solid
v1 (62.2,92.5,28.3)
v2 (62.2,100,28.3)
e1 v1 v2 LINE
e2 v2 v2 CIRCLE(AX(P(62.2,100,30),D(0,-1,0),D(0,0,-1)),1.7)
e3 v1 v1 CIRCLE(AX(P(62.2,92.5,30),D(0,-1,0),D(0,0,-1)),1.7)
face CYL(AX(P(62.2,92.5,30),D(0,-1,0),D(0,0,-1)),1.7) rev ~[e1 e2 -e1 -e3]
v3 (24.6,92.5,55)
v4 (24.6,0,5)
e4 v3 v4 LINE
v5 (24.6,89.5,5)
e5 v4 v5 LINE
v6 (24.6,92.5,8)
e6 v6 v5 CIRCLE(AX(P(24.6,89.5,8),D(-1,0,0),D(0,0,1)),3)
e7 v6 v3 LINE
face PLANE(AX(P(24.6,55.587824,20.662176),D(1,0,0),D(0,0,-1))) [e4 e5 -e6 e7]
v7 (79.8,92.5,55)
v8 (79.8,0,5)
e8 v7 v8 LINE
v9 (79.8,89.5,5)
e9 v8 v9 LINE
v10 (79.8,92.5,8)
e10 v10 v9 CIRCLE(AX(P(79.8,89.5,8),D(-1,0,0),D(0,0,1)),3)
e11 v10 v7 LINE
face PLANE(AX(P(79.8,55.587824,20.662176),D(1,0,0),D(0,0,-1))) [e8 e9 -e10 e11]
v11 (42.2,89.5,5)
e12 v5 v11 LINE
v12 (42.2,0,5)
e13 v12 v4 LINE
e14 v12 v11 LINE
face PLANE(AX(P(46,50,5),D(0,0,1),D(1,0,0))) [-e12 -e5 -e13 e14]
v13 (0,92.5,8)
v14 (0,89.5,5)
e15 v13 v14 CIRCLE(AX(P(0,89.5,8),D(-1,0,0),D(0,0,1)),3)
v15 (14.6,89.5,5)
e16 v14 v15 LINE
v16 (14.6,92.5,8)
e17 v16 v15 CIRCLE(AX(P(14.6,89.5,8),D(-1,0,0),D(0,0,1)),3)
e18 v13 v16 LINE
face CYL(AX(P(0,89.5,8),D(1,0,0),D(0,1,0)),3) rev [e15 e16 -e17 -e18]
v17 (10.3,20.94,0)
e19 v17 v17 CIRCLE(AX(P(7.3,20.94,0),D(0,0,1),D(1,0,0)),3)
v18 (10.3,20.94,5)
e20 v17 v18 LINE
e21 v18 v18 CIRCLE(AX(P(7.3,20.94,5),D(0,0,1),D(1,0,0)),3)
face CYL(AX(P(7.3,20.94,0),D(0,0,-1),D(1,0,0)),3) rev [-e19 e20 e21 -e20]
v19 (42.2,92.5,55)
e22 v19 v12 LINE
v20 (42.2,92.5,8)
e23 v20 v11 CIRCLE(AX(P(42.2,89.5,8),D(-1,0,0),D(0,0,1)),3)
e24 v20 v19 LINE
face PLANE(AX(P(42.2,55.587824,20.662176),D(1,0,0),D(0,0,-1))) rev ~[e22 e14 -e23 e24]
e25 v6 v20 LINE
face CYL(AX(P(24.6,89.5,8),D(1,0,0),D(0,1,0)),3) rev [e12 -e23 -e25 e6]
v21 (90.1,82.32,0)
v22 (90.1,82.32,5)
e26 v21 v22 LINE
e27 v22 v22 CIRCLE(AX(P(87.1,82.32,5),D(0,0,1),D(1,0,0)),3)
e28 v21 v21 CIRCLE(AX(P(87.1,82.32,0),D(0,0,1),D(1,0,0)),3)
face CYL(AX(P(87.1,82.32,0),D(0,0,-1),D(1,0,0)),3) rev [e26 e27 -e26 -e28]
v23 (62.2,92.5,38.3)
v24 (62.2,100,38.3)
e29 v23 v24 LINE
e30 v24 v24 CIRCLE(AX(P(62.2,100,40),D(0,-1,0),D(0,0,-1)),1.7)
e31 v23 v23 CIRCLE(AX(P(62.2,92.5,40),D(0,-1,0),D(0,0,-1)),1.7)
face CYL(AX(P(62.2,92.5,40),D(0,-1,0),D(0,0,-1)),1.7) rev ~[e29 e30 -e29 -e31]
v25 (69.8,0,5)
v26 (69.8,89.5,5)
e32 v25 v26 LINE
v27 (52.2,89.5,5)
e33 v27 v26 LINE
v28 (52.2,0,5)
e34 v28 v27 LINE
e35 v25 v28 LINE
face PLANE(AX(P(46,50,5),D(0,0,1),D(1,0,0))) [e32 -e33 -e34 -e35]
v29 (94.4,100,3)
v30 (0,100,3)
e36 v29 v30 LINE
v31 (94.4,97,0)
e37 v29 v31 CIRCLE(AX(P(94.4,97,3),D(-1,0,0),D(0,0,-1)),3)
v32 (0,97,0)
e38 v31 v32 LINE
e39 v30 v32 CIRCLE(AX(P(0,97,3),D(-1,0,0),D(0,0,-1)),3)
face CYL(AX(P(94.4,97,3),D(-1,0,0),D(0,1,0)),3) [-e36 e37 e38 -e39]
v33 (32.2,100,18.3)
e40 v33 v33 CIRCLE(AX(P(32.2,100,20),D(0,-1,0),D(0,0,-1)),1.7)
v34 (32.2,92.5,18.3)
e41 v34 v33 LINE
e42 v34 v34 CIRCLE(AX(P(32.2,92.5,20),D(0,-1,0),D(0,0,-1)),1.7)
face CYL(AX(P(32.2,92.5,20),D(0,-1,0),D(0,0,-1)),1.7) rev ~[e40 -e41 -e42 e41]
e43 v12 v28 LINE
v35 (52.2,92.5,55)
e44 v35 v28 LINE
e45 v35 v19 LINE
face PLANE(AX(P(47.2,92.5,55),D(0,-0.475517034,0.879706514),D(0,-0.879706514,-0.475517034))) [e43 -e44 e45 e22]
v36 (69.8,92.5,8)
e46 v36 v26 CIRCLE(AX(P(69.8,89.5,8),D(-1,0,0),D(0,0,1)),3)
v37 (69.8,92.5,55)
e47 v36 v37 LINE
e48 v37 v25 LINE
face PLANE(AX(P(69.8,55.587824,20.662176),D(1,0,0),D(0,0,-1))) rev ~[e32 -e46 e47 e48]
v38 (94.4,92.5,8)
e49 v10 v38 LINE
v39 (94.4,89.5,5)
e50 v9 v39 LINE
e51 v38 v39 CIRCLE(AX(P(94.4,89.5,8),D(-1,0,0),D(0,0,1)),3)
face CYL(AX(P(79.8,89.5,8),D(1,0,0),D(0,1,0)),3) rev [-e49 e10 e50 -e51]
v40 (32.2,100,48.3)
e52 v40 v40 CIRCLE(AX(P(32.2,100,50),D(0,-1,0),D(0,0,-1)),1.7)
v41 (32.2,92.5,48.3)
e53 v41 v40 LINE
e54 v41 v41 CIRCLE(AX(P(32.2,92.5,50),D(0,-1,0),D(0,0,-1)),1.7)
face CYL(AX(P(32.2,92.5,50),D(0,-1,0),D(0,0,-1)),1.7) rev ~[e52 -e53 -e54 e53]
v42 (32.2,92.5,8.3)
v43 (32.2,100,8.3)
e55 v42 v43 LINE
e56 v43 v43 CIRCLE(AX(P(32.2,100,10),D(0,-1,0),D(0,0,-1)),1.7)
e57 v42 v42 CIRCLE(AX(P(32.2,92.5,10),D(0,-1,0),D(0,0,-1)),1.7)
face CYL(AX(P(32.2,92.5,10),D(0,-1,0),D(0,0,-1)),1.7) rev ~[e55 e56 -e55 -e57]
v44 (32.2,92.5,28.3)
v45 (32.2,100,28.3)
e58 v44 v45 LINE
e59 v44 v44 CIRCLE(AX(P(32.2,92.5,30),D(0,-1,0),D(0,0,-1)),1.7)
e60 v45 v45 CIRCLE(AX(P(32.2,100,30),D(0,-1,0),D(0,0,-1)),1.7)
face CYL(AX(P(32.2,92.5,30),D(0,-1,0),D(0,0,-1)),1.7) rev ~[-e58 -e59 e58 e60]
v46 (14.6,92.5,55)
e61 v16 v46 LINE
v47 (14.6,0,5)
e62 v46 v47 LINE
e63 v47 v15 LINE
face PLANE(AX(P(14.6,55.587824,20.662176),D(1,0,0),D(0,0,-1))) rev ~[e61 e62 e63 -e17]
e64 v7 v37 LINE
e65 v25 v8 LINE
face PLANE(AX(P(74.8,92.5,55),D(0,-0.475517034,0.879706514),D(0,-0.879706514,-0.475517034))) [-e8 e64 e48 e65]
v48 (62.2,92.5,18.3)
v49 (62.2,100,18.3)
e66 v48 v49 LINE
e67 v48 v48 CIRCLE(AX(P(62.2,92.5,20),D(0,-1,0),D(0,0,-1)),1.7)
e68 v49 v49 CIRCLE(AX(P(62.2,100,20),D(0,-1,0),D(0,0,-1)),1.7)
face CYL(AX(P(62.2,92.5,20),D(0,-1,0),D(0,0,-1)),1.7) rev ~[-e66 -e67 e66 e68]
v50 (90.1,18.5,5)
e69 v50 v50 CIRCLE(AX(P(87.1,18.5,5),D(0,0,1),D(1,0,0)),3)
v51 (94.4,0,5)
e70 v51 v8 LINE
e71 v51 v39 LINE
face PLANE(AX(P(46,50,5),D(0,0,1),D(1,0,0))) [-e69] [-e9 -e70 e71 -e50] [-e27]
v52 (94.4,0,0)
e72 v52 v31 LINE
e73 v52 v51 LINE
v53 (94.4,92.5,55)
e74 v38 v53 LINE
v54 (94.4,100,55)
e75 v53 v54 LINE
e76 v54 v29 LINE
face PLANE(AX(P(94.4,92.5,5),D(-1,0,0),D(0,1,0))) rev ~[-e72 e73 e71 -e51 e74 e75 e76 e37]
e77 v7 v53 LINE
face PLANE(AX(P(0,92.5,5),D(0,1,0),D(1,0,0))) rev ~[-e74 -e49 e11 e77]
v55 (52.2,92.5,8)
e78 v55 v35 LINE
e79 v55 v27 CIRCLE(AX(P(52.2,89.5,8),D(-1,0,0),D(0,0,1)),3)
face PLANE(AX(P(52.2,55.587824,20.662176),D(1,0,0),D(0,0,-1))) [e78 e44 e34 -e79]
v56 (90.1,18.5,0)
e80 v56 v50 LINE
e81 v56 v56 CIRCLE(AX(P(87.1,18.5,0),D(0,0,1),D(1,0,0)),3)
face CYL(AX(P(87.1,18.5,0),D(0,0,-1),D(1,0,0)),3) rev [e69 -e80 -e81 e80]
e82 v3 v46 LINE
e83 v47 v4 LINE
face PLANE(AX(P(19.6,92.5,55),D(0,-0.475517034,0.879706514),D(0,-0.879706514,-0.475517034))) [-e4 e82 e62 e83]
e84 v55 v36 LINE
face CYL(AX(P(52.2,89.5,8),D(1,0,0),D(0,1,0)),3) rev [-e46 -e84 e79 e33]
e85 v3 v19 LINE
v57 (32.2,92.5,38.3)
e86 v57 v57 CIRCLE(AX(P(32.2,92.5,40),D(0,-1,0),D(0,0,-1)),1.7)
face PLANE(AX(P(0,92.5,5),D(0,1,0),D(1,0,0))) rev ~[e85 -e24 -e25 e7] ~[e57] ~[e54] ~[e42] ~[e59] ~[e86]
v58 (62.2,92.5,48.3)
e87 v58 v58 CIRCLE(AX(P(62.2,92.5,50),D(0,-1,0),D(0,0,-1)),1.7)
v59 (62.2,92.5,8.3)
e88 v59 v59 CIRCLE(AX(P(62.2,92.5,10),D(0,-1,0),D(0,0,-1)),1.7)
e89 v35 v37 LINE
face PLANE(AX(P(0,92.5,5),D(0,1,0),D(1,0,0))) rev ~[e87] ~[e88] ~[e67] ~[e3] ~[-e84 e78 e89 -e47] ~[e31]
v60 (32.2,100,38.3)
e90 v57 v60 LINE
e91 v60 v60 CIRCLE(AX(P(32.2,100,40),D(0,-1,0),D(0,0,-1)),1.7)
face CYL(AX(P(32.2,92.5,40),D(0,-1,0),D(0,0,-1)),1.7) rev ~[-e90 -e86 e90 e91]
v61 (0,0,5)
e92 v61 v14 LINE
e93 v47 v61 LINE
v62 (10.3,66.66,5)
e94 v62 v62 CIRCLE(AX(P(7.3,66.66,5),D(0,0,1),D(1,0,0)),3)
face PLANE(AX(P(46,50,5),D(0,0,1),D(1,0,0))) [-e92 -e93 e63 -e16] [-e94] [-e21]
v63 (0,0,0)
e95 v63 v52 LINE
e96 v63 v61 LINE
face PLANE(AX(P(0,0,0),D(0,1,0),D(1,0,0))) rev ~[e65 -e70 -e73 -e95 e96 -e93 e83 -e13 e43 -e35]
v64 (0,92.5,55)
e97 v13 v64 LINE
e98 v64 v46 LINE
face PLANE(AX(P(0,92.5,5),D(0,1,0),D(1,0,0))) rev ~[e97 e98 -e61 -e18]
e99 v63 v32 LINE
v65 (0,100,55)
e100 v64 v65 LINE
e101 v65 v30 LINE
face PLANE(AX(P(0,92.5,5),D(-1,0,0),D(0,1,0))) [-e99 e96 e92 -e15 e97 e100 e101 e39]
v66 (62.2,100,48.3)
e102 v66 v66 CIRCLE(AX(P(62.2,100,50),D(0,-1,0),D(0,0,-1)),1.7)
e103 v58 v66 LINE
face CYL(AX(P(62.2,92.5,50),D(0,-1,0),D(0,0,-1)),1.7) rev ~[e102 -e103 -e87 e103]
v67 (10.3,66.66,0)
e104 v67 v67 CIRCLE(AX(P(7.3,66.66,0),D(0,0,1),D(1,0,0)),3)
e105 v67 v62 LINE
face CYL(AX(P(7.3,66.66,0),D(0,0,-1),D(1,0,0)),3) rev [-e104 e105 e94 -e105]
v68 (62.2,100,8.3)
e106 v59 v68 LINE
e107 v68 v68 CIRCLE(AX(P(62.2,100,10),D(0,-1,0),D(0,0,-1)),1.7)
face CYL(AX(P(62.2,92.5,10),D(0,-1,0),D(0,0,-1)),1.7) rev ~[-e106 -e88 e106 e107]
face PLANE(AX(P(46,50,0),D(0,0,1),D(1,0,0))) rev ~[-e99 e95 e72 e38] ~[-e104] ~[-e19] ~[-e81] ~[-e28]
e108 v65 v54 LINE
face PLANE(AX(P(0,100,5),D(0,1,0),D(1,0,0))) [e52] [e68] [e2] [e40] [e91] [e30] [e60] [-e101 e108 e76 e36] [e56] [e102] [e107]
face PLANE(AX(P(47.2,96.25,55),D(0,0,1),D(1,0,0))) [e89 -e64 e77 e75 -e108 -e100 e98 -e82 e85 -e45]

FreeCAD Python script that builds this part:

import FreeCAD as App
import Part
import Sketcher

V = App.Vector
Q = App.Units.Quantity


def edges_at(feature, points):
    """Names of the edges that pass closest to the given points."""
    edges = feature.Shape.Edges
    near = lambda p: min(range(len(edges)), key=lambda i: edges[i].distToShape(Part.Vertex(*p))[0])
    return sorted({f"Edge{near(p) + 1}" for p in points})


def add_polygon(sketch, points):
    """Adds a closed chain of lines whose ends are joined by coincident constraints."""
    first, n = sketch.GeometryCount, len(points)
    for a, b in zip(points, points[1:] + points[:1]):
        sketch.addGeometry(Part.LineSegment(App.Vector(*a, 0), App.Vector(*b, 0)), False)
    for i in range(n):
        sketch.addConstraint(Sketcher.Constraint("Coincident", first + i, 2, first + (i + 1) % n, 1))

doc = App.newDocument("Part")
body = doc.addObject("PartDesign::Body", "Body")

sketch1 = doc.addObject("Sketcher::SketchObject", "Sketch")
body.addObject(sketch1)
sketch1.AttachmentSupport = (doc.XY_Plane, [""])
sketch1.MapMode = "FlatFace"
add_polygon(sketch1, [(94.4, 0), (94.4, 100), (0, 100), (0, 0)])
sketch1.addGeometry(Part.Circle(V(87.1, 82.3, 0), V(0, 0, 1), 3), False)
sketch1.addGeometry(Part.Circle(V(7.3, 20.9, 0), V(0, 0, 1), 3), False)
sketch1.addGeometry(Part.Circle(V(87.1, 18.5, 0), V(0, 0, 1), 3), False)
sketch1.addGeometry(Part.Circle(V(7.3, 66.7, 0), V(0, 0, 1), 3), False)
sketch1.addConstraint(Sketcher.Constraint("Vertical", 0))
sketch1.addConstraint(Sketcher.Constraint("Horizontal", 1))
sketch1.addConstraint(Sketcher.Constraint("Vertical", 2))
sketch1.addConstraint(Sketcher.Constraint("Horizontal", 3))
sketch1.addConstraint(Sketcher.Constraint("Coincident", 2, 2, -1, 1))
sketch1.addConstraint(Sketcher.Constraint("Equal", 4, 5))
sketch1.addConstraint(Sketcher.Constraint("Equal", 5, 6))
sketch1.addConstraint(Sketcher.Constraint("Equal", 6, 7))
sketch1.addConstraint(Sketcher.Constraint("Vertical", 4, 3, 6, 3))
sketch1.addConstraint(Sketcher.Constraint("Vertical", 5, 3, 7, 3))
sketch1.addConstraint(Sketcher.Constraint("Diameter", 4, Q("6 mm")))
sketch1.addConstraint(Sketcher.Constraint("DistanceY", 0, 1, 0, 2, Q("100 mm")))
sketch1.addConstraint(Sketcher.Constraint("DistanceX", 1, 2, 1, 1, Q("94.4 mm")))
sketch1.addConstraint(Sketcher.Constraint("DistanceX", -1, 1, 4, 3, Q("87.1 mm")))
sketch1.addConstraint(Sketcher.Constraint("DistanceX", -1, 1, 5, 3, Q("7.3 mm")))
sketch1.addConstraint(Sketcher.Constraint("DistanceY", -1, 1, 6, 3, Q("18.5 mm")))
sketch1.addConstraint(Sketcher.Constraint("DistanceY", -1, 1, 4, 3, Q("82.32 mm")))
sketch1.addConstraint(Sketcher.Constraint("DistanceY", -1, 1, 5, 3, Q("20.94 mm")))
sketch1.addConstraint(Sketcher.Constraint("DistanceY", -1, 1, 7, 3, Q("66.66 mm")))
pad1 = doc.addObject("PartDesign::Pad", "Pad")
body.addObject(pad1)
pad1.Profile = sketch1
pad1.Length = 5

sketch2 = doc.addObject("Sketcher::SketchObject", "Sketch001")
body.addObject(sketch2)
sketch2.AttachmentSupport = (doc.XY_Plane, [""])
sketch2.MapMode = "FlatFace"
sketch2.AttachmentOffset = App.Placement(V(0, 0, 5), App.Rotation())
add_polygon(sketch2, [(0, 100), (0, 92), (94, 92), (94, 100)])
sketch2.addConstraint(Sketcher.Constraint("Vertical", 0))
sketch2.addConstraint(Sketcher.Constraint("Horizontal", 1))
sketch2.addConstraint(Sketcher.Constraint("Vertical", 2))
sketch2.addConstraint(Sketcher.Constraint("Horizontal", 3))
sketch2.addConstraint(Sketcher.Constraint("PointOnObject", 0, 2, -2))
sketch2.addConstraint(Sketcher.Constraint("DistanceX", 1, 1, 1, 2, Q("94.4 mm")))
sketch2.addConstraint(Sketcher.Constraint("DistanceY", 0, 2, 0, 1, Q("7.5 mm")))
sketch2.addConstraint(Sketcher.Constraint("DistanceY", -1, 1, 2, 2, Q("100 mm")))
pad2 = doc.addObject("PartDesign::Pad", "Pad001")
body.addObject(pad2)
pad2.Profile = sketch2
pad2.Length = 50

sketch3 = doc.addObject("Sketcher::SketchObject", "Sketch002")
body.addObject(sketch3)
sketch3.AttachmentSupport = (doc.YZ_Plane, [""])
sketch3.MapMode = "FlatFace"
sketch3.AttachmentOffset = App.Placement(V(0, 0, 47.2), App.Rotation())
add_polygon(sketch3, [(92, 55), (0, 5), (92, 5)])
sketch3.addConstraint(Sketcher.Constraint("Horizontal", 1))
sketch3.addConstraint(Sketcher.Constraint("Vertical", 2))
sketch3.addConstraint(Sketcher.Constraint("PointOnObject", 0, 2, -2))
sketch3.addConstraint(Sketcher.Constraint("DistanceY", 2, 1, 2, 2, Q("50 mm")))
sketch3.addConstraint(Sketcher.Constraint("DistanceX", 1, 1, 1, 2, Q("92.5 mm")))
sketch3.addConstraint(Sketcher.Constraint("DistanceY", -1, 1, 0, 2, Q("5 mm")))
pad3 = doc.addObject("PartDesign::Pad", "Pad002")
body.addObject(pad3)
pad3.Profile = sketch3
pad3.Length = 10
pad3.Midplane = True
doc.recompute()

linearpattern = doc.addObject("PartDesign::LinearPattern", "LinearPattern")
body.addObject(linearpattern)
linearpattern.Originals = [pad3]
linearpattern.Direction = (doc.X_Axis, [""])
linearpattern.Mode = "offset"
linearpattern.Offset = 27.6
linearpattern.Occurrences = 2
linearpattern.Reversed = True
body.Tip = linearpattern
doc.recompute()

linearpattern2 = doc.addObject("PartDesign::LinearPattern", "LinearPattern001")
body.addObject(linearpattern2)
linearpattern2.Originals = [pad3]
linearpattern2.Direction = (doc.X_Axis, [""])
linearpattern2.Mode = "offset"
linearpattern2.Offset = 27.6
linearpattern2.Occurrences = 2
body.Tip = linearpattern2
doc.recompute()

fillet = doc.addObject("PartDesign::Fillet", "Fillet")
body.addObject(fillet)
fillet.Base = (linearpattern2, edges_at(linearpattern2, [
    (47.2, 100, 0),
    (7.3, 92.5, 5),
    (61, 92.5, 5),
    (87.1, 92.5, 5),
    (33.4, 92.5, 5),
]))
fillet.Radius = 3

sketch4 = doc.addObject("Sketcher::SketchObject", "Sketch003")
body.addObject(sketch4)
sketch4.AttachmentSupport = (doc.XZ_Plane, [""])
sketch4.MapMode = "FlatFace"
sketch4.AttachmentOffset = App.Placement(V(0, 0, -92.5), App.Rotation())
sketch4.addGeometry(Part.Circle(V(32.2, 50, 0), V(0, 0, 1), 1.7), False)
sketch4.addConstraint(Sketcher.Constraint("Diameter", 0, Q("3.4 mm")))
sketch4.addConstraint(Sketcher.Constraint("DistanceY", -1, 1, 0, 3, Q("50 mm")))
sketch4.addConstraint(Sketcher.Constraint("DistanceX", -1, 1, 0, 3, Q("32.2 mm")))
pocket1 = doc.addObject("PartDesign::Pocket", "Pocket")
body.addObject(pocket1)
pocket1.Profile = sketch4
pocket1.Type = "UpToFirst"

sketch5 = doc.addObject("Sketcher::SketchObject", "Sketch004")
body.addObject(sketch5)
sketch5.AttachmentSupport = (doc.XZ_Plane, [""])
sketch5.MapMode = "FlatFace"
sketch5.AttachmentOffset = App.Placement(V(0, 0, -92.5), App.Rotation())
sketch5.addGeometry(Part.Circle(V(62.2, 50, 0), V(0, 0, 1), 1.7), False)
sketch5.addConstraint(Sketcher.Constraint("Diameter", 0, Q("3.4 mm")))
sketch5.addConstraint(Sketcher.Constraint("DistanceY", -1, 1, 0, 3, Q("50 mm")))
sketch5.addConstraint(Sketcher.Constraint("DistanceX", -1, 1, 0, 3, Q("62.2 mm")))
pocket2 = doc.addObject("PartDesign::Pocket", "Pocket001")
body.addObject(pocket2)
pocket2.Profile = sketch5
pocket2.Type = "UpToFirst"

sketch6 = doc.addObject("Sketcher::SketchObject", "Sketch005")
body.addObject(sketch6)
sketch6.AttachmentSupport = (doc.XZ_Plane, [""])
sketch6.MapMode = "FlatFace"
sketch6.AttachmentOffset = App.Placement(V(0, 0, -92.5), App.Rotation())
sketch6.addGeometry(Part.Circle(V(62.2, 40, 0), V(0, 0, 1), 1.7), False)
sketch6.addConstraint(Sketcher.Constraint("Diameter", 0, Q("3.4 mm")))
sketch6.addConstraint(Sketcher.Constraint("DistanceY", -1, 1, 0, 3, Q("40 mm")))
sketch6.addConstraint(Sketcher.Constraint("DistanceX", -1, 1, 0, 3, Q("62.2 mm")))
pocket3 = doc.addObject("PartDesign::Pocket", "Pocket002")
body.addObject(pocket3)
pocket3.Profile = sketch6
pocket3.Type = "UpToFirst"

sketch7 = doc.addObject("Sketcher::SketchObject", "Sketch006")
body.addObject(sketch7)
sketch7.AttachmentSupport = (doc.XZ_Plane, [""])
sketch7.MapMode = "FlatFace"
sketch7.AttachmentOffset = App.Placement(V(0, 0, -92.5), App.Rotation())
sketch7.addGeometry(Part.Circle(V(62.2, 30, 0), V(0, 0, 1), 1.7), False)
sketch7.addConstraint(Sketcher.Constraint("Diameter", 0, Q("3.4 mm")))
sketch7.addConstraint(Sketcher.Constraint("DistanceY", -1, 1, 0, 3, Q("30 mm")))
sketch7.addConstraint(Sketcher.Constraint("DistanceX", -1, 1, 0, 3, Q("62.2 mm")))
pocket4 = doc.addObject("PartDesign::Pocket", "Pocket003")
body.addObject(pocket4)
pocket4.Profile = sketch7
pocket4.Type = "UpToFirst"

sketch8 = doc.addObject("Sketcher::SketchObject", "Sketch007")
body.addObject(sketch8)
sketch8.AttachmentSupport = (doc.XZ_Plane, [""])
sketch8.MapMode = "FlatFace"
sketch8.AttachmentOffset = App.Placement(V(0, 0, -92.5), App.Rotation())
sketch8.addGeometry(Part.Circle(V(62.2, 20, 0), V(0, 0, 1), 1.7), False)
sketch8.addConstraint(Sketcher.Constraint("Diameter", 0, Q("3.4 mm")))
sketch8.addConstraint(Sketcher.Constraint("DistanceY", -1, 1, 0, 3, Q("20 mm")))
sketch8.addConstraint(Sketcher.Constraint("DistanceX", -1, 1, 0, 3, Q("62.2 mm")))
pocket5 = doc.addObject("PartDesign::Pocket", "Pocket004")
body.addObject(pocket5)
pocket5.Profile = sketch8
pocket5.Type = "UpToFirst"

sketch9 = doc.addObject("Sketcher::SketchObject", "Sketch008")
body.addObject(sketch9)
sketch9.AttachmentSupport = (doc.XZ_Plane, [""])
sketch9.MapMode = "FlatFace"
sketch9.AttachmentOffset = App.Placement(V(0, 0, -92.5), App.Rotation())
sketch9.addGeometry(Part.Circle(V(62.2, 10, 0), V(0, 0, 1), 1.7), False)
sketch9.addConstraint(Sketcher.Constraint("Diameter", 0, Q("3.4 mm")))
sketch9.addConstraint(Sketcher.Constraint("DistanceY", -1, 1, 0, 3, Q("10 mm")))
sketch9.addConstraint(Sketcher.Constraint("DistanceX", -1, 1, 0, 3, Q("62.2 mm")))
pocket6 = doc.addObject("PartDesign::Pocket", "Pocket005")
body.addObject(pocket6)
pocket6.Profile = sketch9
pocket6.Type = "UpToFirst"

sketch10 = doc.addObject("Sketcher::SketchObject", "Sketch009")
body.addObject(sketch10)
sketch10.AttachmentSupport = (doc.XZ_Plane, [""])
sketch10.MapMode = "FlatFace"
sketch10.AttachmentOffset = App.Placement(V(0, 0, -92.5), App.Rotation())
sketch10.addGeometry(Part.Circle(V(32.2, 40, 0), V(0, 0, 1), 1.7), False)
sketch10.addConstraint(Sketcher.Constraint("Diameter", 0, Q("3.4 mm")))
sketch10.addConstraint(Sketcher.Constraint("DistanceY", -1, 1, 0, 3, Q("40 mm")))
sketch10.addConstraint(Sketcher.Constraint("DistanceX", -1, 1, 0, 3, Q("32.2 mm")))
pocket7 = doc.addObject("PartDesign::Pocket", "Pocket006")
body.addObject(pocket7)
pocket7.Profile = sketch10
pocket7.Type = "UpToFirst"

sketch11 = doc.addObject("Sketcher::SketchObject", "Sketch010")
body.addObject(sketch11)
sketch11.AttachmentSupport = (doc.XZ_Plane, [""])
sketch11.MapMode = "FlatFace"
sketch11.AttachmentOffset = App.Placement(V(0, 0, -92.5), App.Rotation())
sketch11.addGeometry(Part.Circle(V(32.2, 30, 0), V(0, 0, 1), 1.7), False)
sketch11.addConstraint(Sketcher.Constraint("Diameter", 0, Q("3.4 mm")))
sketch11.addConstraint(Sketcher.Constraint("DistanceY", -1, 1, 0, 3, Q("30 mm")))
sketch11.addConstraint(Sketcher.Constraint("DistanceX", -1, 1, 0, 3, Q("32.2 mm")))
pocket8 = doc.addObject("PartDesign::Pocket", "Pocket007")
body.addObject(pocket8)
pocket8.Profile = sketch11
pocket8.Type = "UpToFirst"

sketch12 = doc.addObject("Sketcher::SketchObject", "Sketch011")
body.addObject(sketch12)
sketch12.AttachmentSupport = (doc.XZ_Plane, [""])
sketch12.MapMode = "FlatFace"
sketch12.AttachmentOffset = App.Placement(V(0, 0, -92.5), App.Rotation())
sketch12.addGeometry(Part.Circle(V(32.2, 20, 0), V(0, 0, 1), 1.7), False)
sketch12.addConstraint(Sketcher.Constraint("Diameter", 0, Q("3.4 mm")))
sketch12.addConstraint(Sketcher.Constraint("DistanceY", -1, 1, 0, 3, Q("20 mm")))
sketch12.addConstraint(Sketcher.Constraint("DistanceX", -1, 1, 0, 3, Q("32.2 mm")))
pocket9 = doc.addObject("PartDesign::Pocket", "Pocket008")
body.addObject(pocket9)
pocket9.Profile = sketch12
pocket9.Type = "UpToFirst"

sketch13 = doc.addObject("Sketcher::SketchObject", "Sketch012")
body.addObject(sketch13)
sketch13.AttachmentSupport = (doc.XZ_Plane, [""])
sketch13.MapMode = "FlatFace"
sketch13.AttachmentOffset = App.Placement(V(0, 0, -92.5), App.Rotation())
sketch13.addGeometry(Part.Circle(V(32.2, 10, 0), V(0, 0, 1), 1.7), False)
sketch13.addConstraint(Sketcher.Constraint("Diameter", 0, Q("3.4 mm")))
sketch13.addConstraint(Sketcher.Constraint("DistanceY", -1, 1, 0, 3, Q("10 mm")))
sketch13.addConstraint(Sketcher.Constraint("DistanceX", -1, 1, 0, 3, Q("32.2 mm")))
pocket10 = doc.addObject("PartDesign::Pocket", "Pocket009")
body.addObject(pocket10)
pocket10.Profile = sketch13
pocket10.Type = "UpToFirst"

doc.recompute()
